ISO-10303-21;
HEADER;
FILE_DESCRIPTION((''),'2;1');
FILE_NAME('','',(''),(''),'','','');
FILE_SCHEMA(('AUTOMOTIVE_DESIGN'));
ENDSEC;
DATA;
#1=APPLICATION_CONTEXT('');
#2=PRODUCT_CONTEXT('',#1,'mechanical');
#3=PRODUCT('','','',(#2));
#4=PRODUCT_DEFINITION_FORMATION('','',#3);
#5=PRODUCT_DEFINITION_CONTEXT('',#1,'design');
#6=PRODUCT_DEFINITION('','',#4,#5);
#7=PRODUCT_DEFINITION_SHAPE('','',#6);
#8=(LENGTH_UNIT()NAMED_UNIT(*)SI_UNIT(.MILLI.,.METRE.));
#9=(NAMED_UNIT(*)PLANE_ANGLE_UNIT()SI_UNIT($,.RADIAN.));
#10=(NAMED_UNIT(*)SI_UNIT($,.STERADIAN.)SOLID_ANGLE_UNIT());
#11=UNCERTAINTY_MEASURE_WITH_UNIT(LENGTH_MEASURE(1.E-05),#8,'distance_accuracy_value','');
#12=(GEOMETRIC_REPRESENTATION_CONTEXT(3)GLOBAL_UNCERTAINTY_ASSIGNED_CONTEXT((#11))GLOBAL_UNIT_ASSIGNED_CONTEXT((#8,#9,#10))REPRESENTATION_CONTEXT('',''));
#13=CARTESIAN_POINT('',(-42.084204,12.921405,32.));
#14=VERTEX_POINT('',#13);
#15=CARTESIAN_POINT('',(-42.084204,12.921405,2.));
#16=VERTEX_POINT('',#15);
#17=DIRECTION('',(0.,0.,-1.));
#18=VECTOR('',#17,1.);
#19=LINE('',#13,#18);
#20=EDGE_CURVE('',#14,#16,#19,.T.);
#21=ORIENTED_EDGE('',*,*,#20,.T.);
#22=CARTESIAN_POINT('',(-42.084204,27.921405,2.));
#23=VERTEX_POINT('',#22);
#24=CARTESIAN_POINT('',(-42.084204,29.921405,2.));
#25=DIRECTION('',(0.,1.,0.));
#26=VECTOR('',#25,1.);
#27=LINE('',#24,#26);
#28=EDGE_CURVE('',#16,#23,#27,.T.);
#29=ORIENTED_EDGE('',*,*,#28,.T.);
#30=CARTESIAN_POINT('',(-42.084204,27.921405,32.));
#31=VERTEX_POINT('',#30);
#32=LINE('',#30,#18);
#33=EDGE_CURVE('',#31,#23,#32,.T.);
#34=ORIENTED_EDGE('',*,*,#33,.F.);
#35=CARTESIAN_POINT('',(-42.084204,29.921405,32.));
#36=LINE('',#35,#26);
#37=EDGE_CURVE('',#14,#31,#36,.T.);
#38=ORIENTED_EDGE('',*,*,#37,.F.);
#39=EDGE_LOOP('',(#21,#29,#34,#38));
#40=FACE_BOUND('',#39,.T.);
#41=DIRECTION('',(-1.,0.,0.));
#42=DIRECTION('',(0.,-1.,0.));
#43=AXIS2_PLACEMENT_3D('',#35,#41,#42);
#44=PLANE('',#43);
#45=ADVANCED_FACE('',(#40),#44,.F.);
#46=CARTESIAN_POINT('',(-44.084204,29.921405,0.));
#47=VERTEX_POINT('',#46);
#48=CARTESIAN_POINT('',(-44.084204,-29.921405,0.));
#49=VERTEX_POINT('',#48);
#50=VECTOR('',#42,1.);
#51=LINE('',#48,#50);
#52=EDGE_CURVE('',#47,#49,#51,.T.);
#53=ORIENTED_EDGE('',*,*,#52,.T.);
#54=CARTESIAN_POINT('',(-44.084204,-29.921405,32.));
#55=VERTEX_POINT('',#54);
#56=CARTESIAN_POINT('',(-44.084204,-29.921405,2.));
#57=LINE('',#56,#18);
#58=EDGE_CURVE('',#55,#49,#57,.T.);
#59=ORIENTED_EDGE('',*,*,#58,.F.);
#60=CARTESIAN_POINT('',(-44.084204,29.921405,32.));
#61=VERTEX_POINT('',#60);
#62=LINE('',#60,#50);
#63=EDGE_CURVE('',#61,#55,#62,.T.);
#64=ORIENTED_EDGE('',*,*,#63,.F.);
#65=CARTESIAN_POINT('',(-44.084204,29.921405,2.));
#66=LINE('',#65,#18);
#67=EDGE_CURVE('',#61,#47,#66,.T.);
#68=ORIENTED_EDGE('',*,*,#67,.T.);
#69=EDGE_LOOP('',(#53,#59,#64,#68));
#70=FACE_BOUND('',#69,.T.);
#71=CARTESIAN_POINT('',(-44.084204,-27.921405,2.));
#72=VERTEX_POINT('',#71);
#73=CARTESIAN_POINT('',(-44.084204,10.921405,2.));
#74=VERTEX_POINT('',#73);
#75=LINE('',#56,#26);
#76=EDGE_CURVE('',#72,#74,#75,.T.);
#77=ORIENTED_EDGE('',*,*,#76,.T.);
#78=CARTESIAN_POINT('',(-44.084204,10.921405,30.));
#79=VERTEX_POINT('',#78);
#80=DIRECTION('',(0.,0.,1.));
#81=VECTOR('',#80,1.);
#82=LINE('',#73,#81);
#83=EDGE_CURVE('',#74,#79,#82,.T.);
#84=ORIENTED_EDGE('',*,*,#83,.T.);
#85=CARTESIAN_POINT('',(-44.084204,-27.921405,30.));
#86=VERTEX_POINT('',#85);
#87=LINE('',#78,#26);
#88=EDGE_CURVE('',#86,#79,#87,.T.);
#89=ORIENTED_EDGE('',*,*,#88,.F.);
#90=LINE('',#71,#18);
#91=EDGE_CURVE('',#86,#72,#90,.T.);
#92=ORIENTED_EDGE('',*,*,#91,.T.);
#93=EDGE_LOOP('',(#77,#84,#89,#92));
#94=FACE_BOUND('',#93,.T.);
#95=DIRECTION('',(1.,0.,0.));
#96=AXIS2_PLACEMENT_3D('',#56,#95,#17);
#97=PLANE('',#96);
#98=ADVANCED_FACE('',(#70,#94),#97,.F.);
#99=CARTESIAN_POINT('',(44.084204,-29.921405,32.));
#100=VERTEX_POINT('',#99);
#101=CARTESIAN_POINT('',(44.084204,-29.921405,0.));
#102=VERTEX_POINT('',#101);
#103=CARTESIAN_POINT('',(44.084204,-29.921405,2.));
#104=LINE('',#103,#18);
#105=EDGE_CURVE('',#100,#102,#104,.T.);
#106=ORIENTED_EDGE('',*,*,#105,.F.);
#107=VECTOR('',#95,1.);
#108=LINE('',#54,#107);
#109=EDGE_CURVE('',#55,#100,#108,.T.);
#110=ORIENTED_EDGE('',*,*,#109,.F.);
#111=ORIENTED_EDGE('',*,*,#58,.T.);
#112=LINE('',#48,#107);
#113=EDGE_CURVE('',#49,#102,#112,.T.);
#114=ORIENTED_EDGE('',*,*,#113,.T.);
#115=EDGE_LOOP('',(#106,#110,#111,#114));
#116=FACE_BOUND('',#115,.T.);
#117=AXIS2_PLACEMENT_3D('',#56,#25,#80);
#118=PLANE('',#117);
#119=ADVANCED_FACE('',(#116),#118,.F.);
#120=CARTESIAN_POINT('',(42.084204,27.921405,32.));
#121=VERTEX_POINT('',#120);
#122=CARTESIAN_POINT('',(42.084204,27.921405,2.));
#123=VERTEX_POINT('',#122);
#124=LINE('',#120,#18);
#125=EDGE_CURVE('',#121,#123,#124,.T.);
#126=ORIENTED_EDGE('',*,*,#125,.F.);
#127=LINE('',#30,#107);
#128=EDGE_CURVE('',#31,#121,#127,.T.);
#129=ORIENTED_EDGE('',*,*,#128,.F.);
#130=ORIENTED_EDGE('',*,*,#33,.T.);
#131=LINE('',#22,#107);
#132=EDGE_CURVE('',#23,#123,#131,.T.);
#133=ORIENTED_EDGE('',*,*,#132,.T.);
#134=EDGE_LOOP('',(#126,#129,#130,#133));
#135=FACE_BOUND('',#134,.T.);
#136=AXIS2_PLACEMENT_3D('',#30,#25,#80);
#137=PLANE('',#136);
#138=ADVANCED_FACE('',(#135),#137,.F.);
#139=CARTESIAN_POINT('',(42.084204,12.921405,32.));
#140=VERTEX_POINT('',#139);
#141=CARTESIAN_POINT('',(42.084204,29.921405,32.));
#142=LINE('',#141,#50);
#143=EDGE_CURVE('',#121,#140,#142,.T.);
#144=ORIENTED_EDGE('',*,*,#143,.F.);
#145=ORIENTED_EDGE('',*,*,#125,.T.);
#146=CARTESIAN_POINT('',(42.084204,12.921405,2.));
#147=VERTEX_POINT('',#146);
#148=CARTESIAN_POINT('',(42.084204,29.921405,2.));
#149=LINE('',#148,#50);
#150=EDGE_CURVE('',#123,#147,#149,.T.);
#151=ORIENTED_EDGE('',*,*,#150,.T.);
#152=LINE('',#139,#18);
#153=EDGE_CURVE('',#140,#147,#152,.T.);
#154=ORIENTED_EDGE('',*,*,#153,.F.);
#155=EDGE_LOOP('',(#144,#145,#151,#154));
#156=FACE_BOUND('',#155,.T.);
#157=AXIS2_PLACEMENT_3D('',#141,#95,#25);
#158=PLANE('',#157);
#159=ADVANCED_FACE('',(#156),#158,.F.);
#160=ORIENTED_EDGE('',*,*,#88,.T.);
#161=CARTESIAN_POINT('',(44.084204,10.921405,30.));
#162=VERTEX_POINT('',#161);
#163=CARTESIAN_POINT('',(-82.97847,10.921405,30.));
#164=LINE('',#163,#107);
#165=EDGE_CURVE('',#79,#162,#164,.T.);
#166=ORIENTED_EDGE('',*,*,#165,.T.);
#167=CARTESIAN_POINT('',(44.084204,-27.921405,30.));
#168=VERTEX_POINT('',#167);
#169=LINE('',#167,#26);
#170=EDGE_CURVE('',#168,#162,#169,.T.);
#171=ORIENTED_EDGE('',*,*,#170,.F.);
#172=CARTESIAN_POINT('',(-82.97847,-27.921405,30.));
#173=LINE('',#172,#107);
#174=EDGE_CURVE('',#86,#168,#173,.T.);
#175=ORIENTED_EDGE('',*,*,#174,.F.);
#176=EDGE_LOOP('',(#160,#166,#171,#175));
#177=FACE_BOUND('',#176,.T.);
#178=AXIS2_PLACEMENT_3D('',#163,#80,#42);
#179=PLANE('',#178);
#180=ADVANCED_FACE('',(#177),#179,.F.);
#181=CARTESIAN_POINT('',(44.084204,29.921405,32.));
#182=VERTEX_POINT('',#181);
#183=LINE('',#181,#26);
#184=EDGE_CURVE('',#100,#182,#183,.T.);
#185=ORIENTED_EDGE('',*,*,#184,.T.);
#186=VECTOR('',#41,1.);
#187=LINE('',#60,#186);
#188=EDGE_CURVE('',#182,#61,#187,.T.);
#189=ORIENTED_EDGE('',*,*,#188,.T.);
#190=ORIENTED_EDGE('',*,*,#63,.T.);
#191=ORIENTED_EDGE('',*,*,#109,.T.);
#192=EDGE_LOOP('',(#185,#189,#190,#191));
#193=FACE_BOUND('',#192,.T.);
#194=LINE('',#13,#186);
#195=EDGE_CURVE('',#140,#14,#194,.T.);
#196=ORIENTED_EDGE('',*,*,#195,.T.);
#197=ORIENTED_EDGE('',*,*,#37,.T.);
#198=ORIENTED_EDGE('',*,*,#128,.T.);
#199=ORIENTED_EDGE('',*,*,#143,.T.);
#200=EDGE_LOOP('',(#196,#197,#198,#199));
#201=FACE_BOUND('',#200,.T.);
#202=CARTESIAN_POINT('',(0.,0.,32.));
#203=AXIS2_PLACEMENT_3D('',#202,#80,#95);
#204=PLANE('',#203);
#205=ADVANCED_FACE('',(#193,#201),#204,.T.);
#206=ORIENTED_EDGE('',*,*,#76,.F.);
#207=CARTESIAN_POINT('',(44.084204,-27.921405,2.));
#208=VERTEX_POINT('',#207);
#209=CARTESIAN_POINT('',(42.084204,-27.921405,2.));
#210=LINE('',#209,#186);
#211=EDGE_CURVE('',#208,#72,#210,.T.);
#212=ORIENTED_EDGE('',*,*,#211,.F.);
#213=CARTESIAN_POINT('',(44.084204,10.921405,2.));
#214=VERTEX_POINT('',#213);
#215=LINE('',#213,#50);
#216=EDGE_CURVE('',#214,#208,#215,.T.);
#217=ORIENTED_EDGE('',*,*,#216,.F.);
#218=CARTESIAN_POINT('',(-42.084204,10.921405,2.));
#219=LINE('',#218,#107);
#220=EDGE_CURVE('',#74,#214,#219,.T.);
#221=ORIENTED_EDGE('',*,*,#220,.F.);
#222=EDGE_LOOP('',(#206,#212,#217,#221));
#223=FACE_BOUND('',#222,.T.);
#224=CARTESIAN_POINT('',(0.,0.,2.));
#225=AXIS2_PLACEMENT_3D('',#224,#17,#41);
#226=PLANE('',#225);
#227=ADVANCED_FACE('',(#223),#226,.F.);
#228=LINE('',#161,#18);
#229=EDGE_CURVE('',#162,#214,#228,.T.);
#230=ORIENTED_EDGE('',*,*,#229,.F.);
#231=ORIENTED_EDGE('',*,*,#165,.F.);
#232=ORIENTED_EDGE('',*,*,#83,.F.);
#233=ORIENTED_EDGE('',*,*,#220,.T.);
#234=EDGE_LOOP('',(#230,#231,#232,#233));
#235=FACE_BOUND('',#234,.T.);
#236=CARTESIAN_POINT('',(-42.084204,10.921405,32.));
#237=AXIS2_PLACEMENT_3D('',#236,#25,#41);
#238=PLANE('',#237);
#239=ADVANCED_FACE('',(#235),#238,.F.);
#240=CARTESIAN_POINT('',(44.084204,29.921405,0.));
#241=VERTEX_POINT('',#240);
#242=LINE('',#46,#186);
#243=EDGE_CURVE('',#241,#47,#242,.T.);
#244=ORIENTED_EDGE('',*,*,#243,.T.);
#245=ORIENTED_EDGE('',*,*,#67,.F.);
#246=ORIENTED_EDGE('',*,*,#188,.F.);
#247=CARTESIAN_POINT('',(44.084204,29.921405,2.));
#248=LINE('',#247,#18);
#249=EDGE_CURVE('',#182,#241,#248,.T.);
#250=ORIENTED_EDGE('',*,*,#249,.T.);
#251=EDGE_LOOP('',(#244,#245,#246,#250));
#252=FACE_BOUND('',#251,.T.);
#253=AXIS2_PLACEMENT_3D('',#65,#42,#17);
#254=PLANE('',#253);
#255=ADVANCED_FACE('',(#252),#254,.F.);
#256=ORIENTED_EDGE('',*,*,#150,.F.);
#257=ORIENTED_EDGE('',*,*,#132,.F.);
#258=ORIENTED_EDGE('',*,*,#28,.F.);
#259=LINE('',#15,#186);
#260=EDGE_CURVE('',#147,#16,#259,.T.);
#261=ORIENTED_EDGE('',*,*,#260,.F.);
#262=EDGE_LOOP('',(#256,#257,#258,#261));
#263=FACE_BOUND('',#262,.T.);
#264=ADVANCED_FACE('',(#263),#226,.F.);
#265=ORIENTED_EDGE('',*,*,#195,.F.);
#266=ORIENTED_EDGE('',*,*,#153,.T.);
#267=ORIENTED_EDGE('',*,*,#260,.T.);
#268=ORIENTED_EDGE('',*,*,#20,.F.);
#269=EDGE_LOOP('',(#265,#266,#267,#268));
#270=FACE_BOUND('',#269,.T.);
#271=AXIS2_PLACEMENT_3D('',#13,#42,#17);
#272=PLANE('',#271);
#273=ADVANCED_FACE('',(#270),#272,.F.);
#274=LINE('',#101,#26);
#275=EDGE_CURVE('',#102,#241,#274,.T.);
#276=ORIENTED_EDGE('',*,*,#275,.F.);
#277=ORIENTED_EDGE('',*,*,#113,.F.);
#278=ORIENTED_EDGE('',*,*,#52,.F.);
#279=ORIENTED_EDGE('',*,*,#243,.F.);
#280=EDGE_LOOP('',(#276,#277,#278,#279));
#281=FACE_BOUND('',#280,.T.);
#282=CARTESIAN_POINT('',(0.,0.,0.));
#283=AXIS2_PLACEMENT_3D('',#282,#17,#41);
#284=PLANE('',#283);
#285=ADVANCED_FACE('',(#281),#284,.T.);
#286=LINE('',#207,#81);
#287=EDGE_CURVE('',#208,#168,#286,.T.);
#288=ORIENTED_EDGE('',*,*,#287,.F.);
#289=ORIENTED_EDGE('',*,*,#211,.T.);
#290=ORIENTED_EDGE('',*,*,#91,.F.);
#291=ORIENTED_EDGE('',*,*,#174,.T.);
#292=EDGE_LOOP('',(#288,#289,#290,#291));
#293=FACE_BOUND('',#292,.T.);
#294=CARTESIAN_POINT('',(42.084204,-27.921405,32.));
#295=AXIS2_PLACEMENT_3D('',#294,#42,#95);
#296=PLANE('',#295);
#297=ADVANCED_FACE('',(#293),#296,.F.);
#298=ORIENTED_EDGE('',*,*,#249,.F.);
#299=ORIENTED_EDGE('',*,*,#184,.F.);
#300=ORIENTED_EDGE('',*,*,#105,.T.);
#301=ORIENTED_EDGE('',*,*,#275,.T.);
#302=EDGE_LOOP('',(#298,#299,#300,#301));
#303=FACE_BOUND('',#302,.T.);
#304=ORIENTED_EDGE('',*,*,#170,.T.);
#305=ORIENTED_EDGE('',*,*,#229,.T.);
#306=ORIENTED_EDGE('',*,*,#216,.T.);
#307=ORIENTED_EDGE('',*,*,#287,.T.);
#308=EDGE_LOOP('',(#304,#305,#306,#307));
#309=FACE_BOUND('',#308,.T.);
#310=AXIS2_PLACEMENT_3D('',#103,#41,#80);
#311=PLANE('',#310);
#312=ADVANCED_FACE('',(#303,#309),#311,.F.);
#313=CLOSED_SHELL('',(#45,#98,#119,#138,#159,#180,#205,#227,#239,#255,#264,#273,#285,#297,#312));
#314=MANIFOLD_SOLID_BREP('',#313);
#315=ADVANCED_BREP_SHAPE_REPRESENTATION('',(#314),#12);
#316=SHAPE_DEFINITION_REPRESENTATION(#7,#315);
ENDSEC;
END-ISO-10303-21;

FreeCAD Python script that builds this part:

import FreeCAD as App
import Part
import Sketcher

V = App.Vector
Q = App.Units.Quantity

doc = App.newDocument("Part")
params = doc.addObject("Spreadsheet::Sheet", "Params")
for row, (alias, value) in enumerate([
    ("pad1_length", "2 mm"),
    ("sketch2_width", "2 mm"),
    ("pad2_length", "30 mm"),
    ("sketch3_height", "2 mm"),
    ("pad3_length", "30 mm"),
    ("sketch4_height", "30 mm"),
    ("pocket1_length", "30 mm"),
    ("sketch5_height", "2 mm"),
    ("pad4_length", "86.168408 mm"),
    ("sketch6_height", "28 mm"),
], start=1):
    params.set(f"A{row}", alias)
    params.set(f"B{row}", "=" + value)
    params.setAlias(f"B{row}", alias)

body = doc.addObject("PartDesign::Body", "Body")

# Sketch on XY plane
sketch1 = body.newObject("Sketcher::SketchObject", "Sketch")
sketch1.AttachmentSupport = (doc.getObject("XY_Plane"), [""])
sketch1.MapMode = "FlatFace"
sketch1.addGeometry([
    Part.LineSegment(V(-44, 30, 0), V(-44, -30, 0)),
    Part.LineSegment(V(-44, -30, 0), V(44, -30, 0)),
    Part.LineSegment(V(44, -30, 0), V(44, 30, 0)),
    Part.LineSegment(V(44, 30, 0), V(-44, 30, 0)),
], False)
sketch1.addConstraint([
    Sketcher.Constraint("Coincident", 0, 2, 1, 1),
    Sketcher.Constraint("Coincident", 1, 2, 2, 1),
    Sketcher.Constraint("Coincident", 2, 2, 3, 1),
    Sketcher.Constraint("Coincident", 3, 2, 0, 1),
    Sketcher.Constraint("Vertical", 0),
    Sketcher.Constraint("Horizontal", 1),
    Sketcher.Constraint("Vertical", 2),
    Sketcher.Constraint("Horizontal", 3),
    Sketcher.Constraint("Symmetric", 0, 2, 2, 2, -1, 1),
    Sketcher.Constraint("DistanceX", 1, 1, 1, 2, Q("88.168408 mm")),
    Sketcher.Constraint("DistanceY", 0, 2, 0, 1, Q("59.842811 mm")),
])
pad1 = body.newObject("PartDesign::Pad", "Pad")
pad1.Profile = sketch1
pad1.setExpression("Length", "Params.pad1_length")

# Sketch on XY plane
sketch2 = body.newObject("Sketcher::SketchObject", "Sketch001")
sketch2.AttachmentSupport = (doc.getObject("XY_Plane"), [""])
sketch2.MapMode = "FlatFace"
sketch2.AttachmentOffset = App.Placement(V(0, 0, 2), App.Rotation())
sketch2.addGeometry([
    Part.LineSegment(V(-44.1, 29.9, 0), V(-44.1, -29.9, 0)),  # 0
    Part.LineSegment(V(-44.1, -29.9, 0), V(-42.1, -29.9, 0)),  # 1
    Part.LineSegment(V(-42.1, -29.9, 0), V(-42.1, 29.9, 0)),  # 2
    Part.LineSegment(V(-42.1, 29.9, 0), V(-44.1, 29.9, 0)),  # 3
    Part.LineSegment(V(42.1, 29.9, 0), V(42.1, -29.9, 0)),  # 4
    Part.LineSegment(V(42.1, -29.9, 0), V(44.1, -29.9, 0)),  # 5
    Part.LineSegment(V(44.1, -29.9, 0), V(44.1, 29.9, 0)),  # 6
    Part.LineSegment(V(44.1, 29.9, 0), V(42.1, 29.9, 0)),  # 7
], False)
sketch2.addConstraint([
    Sketcher.Constraint("Coincident", 0, 2, 1, 1),
    Sketcher.Constraint("Coincident", 1, 2, 2, 1),
    Sketcher.Constraint("Coincident", 2, 2, 3, 1),
    Sketcher.Constraint("Coincident", 3, 2, 0, 1),
    Sketcher.Constraint("Coincident", 4, 2, 5, 1),
    Sketcher.Constraint("Coincident", 5, 2, 6, 1),
    Sketcher.Constraint("Coincident", 6, 2, 7, 1),
    Sketcher.Constraint("Coincident", 7, 2, 4, 1),
    Sketcher.Constraint("Vertical", 0),
    Sketcher.Constraint("Horizontal", 1),
    Sketcher.Constraint("Vertical", 2),
    Sketcher.Constraint("Horizontal", 3),
    Sketcher.Constraint("Vertical", 4),
    Sketcher.Constraint("Horizontal", 5),
    Sketcher.Constraint("Vertical", 6),
    Sketcher.Constraint("Horizontal", 7),
    Sketcher.Constraint("Symmetric", 2, 2, 4, 2, -1, 1),
    Sketcher.Constraint("Symmetric", 0, 2, 6, 2, -1, 1),
    Sketcher.Constraint("Horizontal", 1, 2, 4, 2),
    Sketcher.Constraint("DistanceX", 1, 1, 1, 2, Q("2 mm")),
    Sketcher.Constraint("DistanceY", 0, 2, 0, 1, Q("59.842811 mm")),
    Sketcher.Constraint("DistanceX", 1, 2, 4, 2, Q("84.168408 mm")),
])
sketch2.setExpression("Constraints[19]", "Params.sketch2_width")
pad2 = body.newObject("PartDesign::Pad", "Pad001")
pad2.Profile = sketch2
pad2.setExpression("Length", "Params.pad2_length")

# Sketch on XY plane
sketch3 = body.newObject("Sketcher::SketchObject", "Sketch002")
sketch3.AttachmentSupport = (doc.getObject("XY_Plane"), [""])
sketch3.MapMode = "FlatFace"
sketch3.AttachmentOffset = App.Placement(V(0, 0, 2), App.Rotation())
sketch3.addGeometry([
    Part.LineSegment(V(-42.1, 29.9, 0), V(-42.1, 27.9, 0)),  # 0
    Part.LineSegment(V(-42.1, 27.9, 0), V(42.1, 27.9, 0)),  # 1
    Part.LineSegment(V(42.1, 27.9, 0), V(42.1, 29.9, 0)),  # 2
    Part.LineSegment(V(42.1, 29.9, 0), V(-42.1, 29.9, 0)),  # 3
    Part.LineSegment(V(-42.1, -27.9, 0), V(-42.1, -29.9, 0)),  # 4
    Part.LineSegment(V(-42.1, -29.9, 0), V(42.1, -29.9, 0)),  # 5
    Part.LineSegment(V(42.1, -29.9, 0), V(42.1, -27.9, 0)),  # 6
    Part.LineSegment(V(42.1, -27.9, 0), V(-42.1, -27.9, 0)),  # 7
    Part.LineSegment(V(-42.1, 12.9, 0), V(-42.1, 10.9, 0)),  # 8
    Part.LineSegment(V(-42.1, 10.9, 0), V(42.1, 10.9, 0)),  # 9
    Part.LineSegment(V(42.1, 10.9, 0), V(42.1, 12.9, 0)),  # 10
    Part.LineSegment(V(42.1, 12.9, 0), V(-42.1, 12.9, 0)),  # 11
], False)
sketch3.addConstraint([
    Sketcher.Constraint("Coincident", 0, 2, 1, 1),
    Sketcher.Constraint("Coincident", 1, 2, 2, 1),
    Sketcher.Constraint("Coincident", 2, 2, 3, 1),
    Sketcher.Constraint("Coincident", 3, 2, 0, 1),
    Sketcher.Constraint("Coincident", 4, 2, 5, 1),
    Sketcher.Constraint("Coincident", 5, 2, 6, 1),
    Sketcher.Constraint("Coincident", 6, 2, 7, 1),
    Sketcher.Constraint("Coincident", 7, 2, 4, 1),
    Sketcher.Constraint("Coincident", 8, 2, 9, 1),
    Sketcher.Constraint("Coincident", 9, 2, 10, 1),
    Sketcher.Constraint("Coincident", 10, 2, 11, 1),
    Sketcher.Constraint("Coincident", 11, 2, 8, 1),
    Sketcher.Constraint("Vertical", 0),
    Sketcher.Constraint("Horizontal", 1),
    Sketcher.Constraint("Vertical", 2),
    Sketcher.Constraint("Horizontal", 3),
    Sketcher.Constraint("Vertical", 4),
    Sketcher.Constraint("Horizontal", 5),
    Sketcher.Constraint("Vertical", 6),
    Sketcher.Constraint("Horizontal", 7),
    Sketcher.Constraint("Vertical", 8),
    Sketcher.Constraint("Horizontal", 9),
    Sketcher.Constraint("Vertical", 10),
    Sketcher.Constraint("Horizontal", 11),
    Sketcher.Constraint("Symmetric", 2, 2, 4, 2, -1, 1),
    Sketcher.Constraint("Symmetric", 0, 2, 6, 2, -1, 1),
    Sketcher.Constraint("Vertical", 3, 2, 4, 2),
    Sketcher.Constraint("Vertical", 7, 2, 8, 2),
    Sketcher.Constraint("Vertical", 6, 2, 9, 2),
    Sketcher.Constraint("Equal", 6, 8),
    Sketcher.Constraint("DistanceY", 0, 2, 0, 1, Q("2 mm")),
    Sketcher.Constraint("DistanceY", 8, 2, 0, 2, Q("17 mm")),
    Sketcher.Constraint("DistanceX", 1, 1, 1, 2, Q("84.168408 mm")),
    Sketcher.Constraint("DistanceY", 4, 2, 0, 2, Q("57.842811 mm")),
])
sketch3.setExpression("Constraints[30]", "Params.sketch3_height")
pad3 = body.newObject("PartDesign::Pad", "Pad002")
pad3.Profile = sketch3
pad3.setExpression("Length", "Params.pad3_length")

# Sketch on YZ plane
sketch4 = body.newObject("Sketcher::SketchObject", "Sketch003")
sketch4.AttachmentSupport = (doc.getObject("YZ_Plane"), [""])
sketch4.MapMode = "FlatFace"
sketch4.AttachmentOffset = App.Placement(V(0, 0, -42.084204), App.Rotation())
sketch4.addGeometry([
    Part.LineSegment(V(11, 32, 0), V(-28, 32, 0)),
    Part.LineSegment(V(-28, 32, 0), V(-28, 2, 0)),
    Part.LineSegment(V(-28, 2, 0), V(11, 2, 0)),
    Part.LineSegment(V(11, 2, 0), V(11, 32, 0)),
], False)
sketch4.addConstraint([
    Sketcher.Constraint("Coincident", 0, 2, 1, 1),
    Sketcher.Constraint("Coincident", 1, 2, 2, 1),
    Sketcher.Constraint("Coincident", 2, 2, 3, 1),
    Sketcher.Constraint("Coincident", 3, 2, 0, 1),
    Sketcher.Constraint("Horizontal", 0),
    Sketcher.Constraint("Vertical", 1),
    Sketcher.Constraint("Horizontal", 2),
    Sketcher.Constraint("Vertical", 3),
    Sketcher.Constraint("DistanceY", 1, 2, 1, 1, Q("30 mm")),
    Sketcher.Constraint("DistanceY", -1, 1, 0, 2, Q("32 mm")),
    Sketcher.Constraint("DistanceX", 0, 2, 0, 1, Q("38.842811 mm")),
    Sketcher.Constraint("DistanceX", 0, 2, -1, 1, Q("27.921405 mm")),
])
sketch4.setExpression("Constraints[8]", "Params.sketch4_height")
pocket1 = body.newObject("PartDesign::Pocket", "Pocket")
pocket1.Profile = sketch4
pocket1.setExpression("Length", "Params.pocket1_length")

# Sketch on YZ plane
sketch5 = body.newObject("Sketcher::SketchObject", "Sketch004")
sketch5.AttachmentSupport = (doc.getObject("YZ_Plane"), [""])
sketch5.MapMode = "FlatFace"
sketch5.AttachmentOffset = App.Placement(V(0, 0, 42.084204), App.Rotation())
sketch5.addGeometry([
    Part.LineSegment(V(10.9, 30, 0), V(-27.9, 30, 0)),
    Part.LineSegment(V(-27.9, 30, 0), V(-27.9, 32, 0)),
    Part.LineSegment(V(-27.9, 32, 0), V(10.9, 32, 0)),
    Part.LineSegment(V(10.9, 32, 0), V(10.9, 30, 0)),
], False)
sketch5.addConstraint([
    Sketcher.Constraint("Coincident", 0, 2, 1, 1),
    Sketcher.Constraint("Coincident", 1, 2, 2, 1),
    Sketcher.Constraint("Coincident", 2, 2, 3, 1),
    Sketcher.Constraint("Coincident", 3, 2, 0, 1),
    Sketcher.Constraint("Horizontal", 0),
    Sketcher.Constraint("Vertical", 1),
    Sketcher.Constraint("Horizontal", 2),
    Sketcher.Constraint("Vertical", 3),
    Sketcher.Constraint("DistanceY", 1, 1, 1, 2, Q("2 mm")),
    Sketcher.Constraint("DistanceY", -1, 1, 0, 2, Q("30 mm")),
    Sketcher.Constraint("DistanceX", 0, 2, 0, 1, Q("38.842811 mm")),
    Sketcher.Constraint("DistanceX", 0, 2, -1, 1, Q("27.921405 mm")),
])
sketch5.setExpression("Constraints[8]", "Params.sketch5_height")
pad4 = body.newObject("PartDesign::Pad", "Pad003")
pad4.Profile = sketch5
pad4.setExpression("Length", "Params.pad4_length")
pad4.Reversed = True

# Sketch on YZ plane
sketch6 = body.newObject("Sketcher::SketchObject", "Sketch005")
sketch6.AttachmentSupport = (doc.getObject("YZ_Plane"), [""])
sketch6.MapMode = "FlatFace"
sketch6.AttachmentOffset = App.Placement(V(0, 0, 42.084204), App.Rotation())
sketch6.addGeometry([
    Part.LineSegment(V(11, 2, 0), V(-28, 2, 0)),
    Part.LineSegment(V(-28, 2, 0), V(-28, 30, 0)),
    Part.LineSegment(V(-28, 30, 0), V(11, 30, 0)),
    Part.LineSegment(V(11, 30, 0), V(11, 2, 0)),
], False)
sketch6.addConstraint([
    Sketcher.Constraint("Coincident", 0, 2, 1, 1),
    Sketcher.Constraint("Coincident", 1, 2, 2, 1),
    Sketcher.Constraint("Coincident", 2, 2, 3, 1),
    Sketcher.Constraint("Coincident", 3, 2, 0, 1),
    Sketcher.Constraint("Horizontal", 0),
    Sketcher.Constraint("Vertical", 1),
    Sketcher.Constraint("Horizontal", 2),
    Sketcher.Constraint("Vertical", 3),
    Sketcher.Constraint("DistanceY", 1, 1, 1, 2, Q("28 mm")),
    Sketcher.Constraint("DistanceY", -1, 1, 0, 2, Q("2 mm")),
    Sketcher.Constraint("DistanceX", 0, 2, 0, 1, Q("38.842811 mm")),
    Sketcher.Constraint("DistanceX", 0, 2, -1, 1, Q("27.921405 mm")),
])
sketch6.setExpression("Constraints[8]", "Params.sketch6_height")
pocket2 = body.newObject("PartDesign::Pocket", "Pocket001")
pocket2.Profile = sketch6
pocket2.Type = "ThroughAll"
pocket2.Reversed = True

doc.recompute()
